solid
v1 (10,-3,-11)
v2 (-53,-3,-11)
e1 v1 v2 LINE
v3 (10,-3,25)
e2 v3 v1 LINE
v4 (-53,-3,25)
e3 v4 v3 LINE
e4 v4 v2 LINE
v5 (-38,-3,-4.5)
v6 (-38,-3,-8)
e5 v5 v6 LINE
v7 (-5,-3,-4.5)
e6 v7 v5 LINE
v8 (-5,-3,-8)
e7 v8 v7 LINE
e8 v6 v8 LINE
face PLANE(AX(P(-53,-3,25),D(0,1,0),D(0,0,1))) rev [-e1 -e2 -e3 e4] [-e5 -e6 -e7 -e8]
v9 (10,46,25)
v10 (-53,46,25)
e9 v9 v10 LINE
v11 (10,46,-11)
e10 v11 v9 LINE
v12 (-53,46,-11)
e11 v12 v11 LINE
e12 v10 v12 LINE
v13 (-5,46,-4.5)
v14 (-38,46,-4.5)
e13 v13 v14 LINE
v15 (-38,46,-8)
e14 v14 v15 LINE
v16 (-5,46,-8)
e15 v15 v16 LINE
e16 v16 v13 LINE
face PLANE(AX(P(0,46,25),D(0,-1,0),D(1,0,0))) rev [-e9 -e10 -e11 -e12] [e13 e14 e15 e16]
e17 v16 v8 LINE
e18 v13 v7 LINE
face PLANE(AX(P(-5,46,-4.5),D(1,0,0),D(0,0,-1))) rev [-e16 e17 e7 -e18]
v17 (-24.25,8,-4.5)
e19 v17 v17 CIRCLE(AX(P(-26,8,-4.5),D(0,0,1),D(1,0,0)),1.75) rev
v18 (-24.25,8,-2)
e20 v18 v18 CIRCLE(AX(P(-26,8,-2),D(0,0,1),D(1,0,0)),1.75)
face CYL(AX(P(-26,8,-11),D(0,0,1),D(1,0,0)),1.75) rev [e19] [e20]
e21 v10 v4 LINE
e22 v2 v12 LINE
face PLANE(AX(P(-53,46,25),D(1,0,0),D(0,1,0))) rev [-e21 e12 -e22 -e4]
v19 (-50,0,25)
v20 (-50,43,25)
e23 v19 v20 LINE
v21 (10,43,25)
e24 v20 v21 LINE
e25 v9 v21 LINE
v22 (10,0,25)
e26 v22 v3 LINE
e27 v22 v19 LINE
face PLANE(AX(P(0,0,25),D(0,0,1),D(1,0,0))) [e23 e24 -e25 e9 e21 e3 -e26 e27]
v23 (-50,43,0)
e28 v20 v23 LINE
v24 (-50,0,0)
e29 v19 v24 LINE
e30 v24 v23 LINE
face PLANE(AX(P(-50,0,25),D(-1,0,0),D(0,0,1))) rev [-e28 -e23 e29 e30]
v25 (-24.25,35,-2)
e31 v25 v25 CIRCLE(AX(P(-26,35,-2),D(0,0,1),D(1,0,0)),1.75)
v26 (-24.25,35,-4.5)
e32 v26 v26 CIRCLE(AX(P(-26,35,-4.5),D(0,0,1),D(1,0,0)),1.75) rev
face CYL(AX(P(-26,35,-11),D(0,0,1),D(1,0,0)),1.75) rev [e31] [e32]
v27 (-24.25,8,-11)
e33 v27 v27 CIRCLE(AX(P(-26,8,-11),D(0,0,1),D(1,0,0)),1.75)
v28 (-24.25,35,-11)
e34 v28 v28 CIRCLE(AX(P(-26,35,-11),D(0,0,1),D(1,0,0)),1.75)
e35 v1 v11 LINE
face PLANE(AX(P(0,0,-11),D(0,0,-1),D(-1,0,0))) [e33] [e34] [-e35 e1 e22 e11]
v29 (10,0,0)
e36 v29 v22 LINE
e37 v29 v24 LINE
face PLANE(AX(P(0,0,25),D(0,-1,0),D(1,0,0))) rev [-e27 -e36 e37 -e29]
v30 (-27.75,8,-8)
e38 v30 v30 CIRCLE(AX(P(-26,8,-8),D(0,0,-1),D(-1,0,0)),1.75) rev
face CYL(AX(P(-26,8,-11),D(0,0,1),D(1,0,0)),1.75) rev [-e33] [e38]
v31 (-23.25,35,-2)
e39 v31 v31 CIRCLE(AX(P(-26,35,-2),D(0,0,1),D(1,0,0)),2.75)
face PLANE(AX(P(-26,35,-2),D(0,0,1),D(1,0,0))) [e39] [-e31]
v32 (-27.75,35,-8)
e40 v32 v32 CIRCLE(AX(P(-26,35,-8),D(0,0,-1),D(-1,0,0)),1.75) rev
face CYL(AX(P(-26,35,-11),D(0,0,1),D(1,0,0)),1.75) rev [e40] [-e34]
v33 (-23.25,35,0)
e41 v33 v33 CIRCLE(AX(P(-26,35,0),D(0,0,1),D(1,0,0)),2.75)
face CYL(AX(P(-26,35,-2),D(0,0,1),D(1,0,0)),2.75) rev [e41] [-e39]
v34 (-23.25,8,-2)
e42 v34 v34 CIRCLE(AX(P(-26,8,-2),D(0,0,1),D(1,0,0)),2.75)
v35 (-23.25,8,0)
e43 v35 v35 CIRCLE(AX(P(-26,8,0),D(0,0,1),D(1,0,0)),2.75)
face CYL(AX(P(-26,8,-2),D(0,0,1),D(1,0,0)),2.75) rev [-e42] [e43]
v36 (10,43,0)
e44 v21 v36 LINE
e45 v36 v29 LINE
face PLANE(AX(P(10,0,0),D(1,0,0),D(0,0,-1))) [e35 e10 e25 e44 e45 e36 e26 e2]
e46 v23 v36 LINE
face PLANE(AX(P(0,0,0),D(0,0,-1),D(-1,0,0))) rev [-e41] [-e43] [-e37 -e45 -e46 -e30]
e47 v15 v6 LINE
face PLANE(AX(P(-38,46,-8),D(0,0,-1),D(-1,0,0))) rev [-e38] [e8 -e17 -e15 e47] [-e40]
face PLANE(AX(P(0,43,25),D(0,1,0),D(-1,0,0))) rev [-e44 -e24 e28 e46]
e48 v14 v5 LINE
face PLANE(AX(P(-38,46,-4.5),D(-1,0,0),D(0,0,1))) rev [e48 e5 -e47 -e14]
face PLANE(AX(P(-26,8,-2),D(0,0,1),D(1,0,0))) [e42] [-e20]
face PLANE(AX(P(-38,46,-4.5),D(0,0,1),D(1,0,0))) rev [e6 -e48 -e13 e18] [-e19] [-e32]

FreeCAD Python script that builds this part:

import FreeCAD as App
import Part
import Sketcher
Q = App.Units.Quantity

doc = App.newDocument("Part")
params = doc.addObject("Spreadsheet::Sheet", "Params")
for row, (alias, value) in enumerate([
    ("sketch1_width", "53 mm"),
    ("sketch1_width2", "50 mm"),
    ("sketch1_height", "3 mm"),
    ("sketch1_height2", "49 mm"),
    ("pad1_length", "25 mm"),
    ("sketch2_width", "53 mm"),
    ("sketch2_height", "49 mm"),
    ("pad2_length", "11 mm"),
    ("sketch3_diameter", "5.5 mm"),
    ("pocket1_length", "2 mm"),
    ("sketch4_diameter", "3.5 mm"),
    ("sketch5_width", "33 mm"),
    ("sketch5_height", "3.5 mm"),
    ("sketch6_width", "43 mm"),
    ("sketch6_width2", "3 mm"),
    ("sketch6_height", "25 mm"),
    ("sketch6_height2", "36 mm"),
    ("pad3_length", "10 mm"),
], start=1):
    params.set(f"A{row}", alias)
    params.set(f"B{row}", "=" + value)
    params.setAlias(f"B{row}", alias)

body = doc.addObject("PartDesign::Body", "Body")

# Sketch on XY plane
sketch1 = body.newObject("Sketcher::SketchObject", "Sketch")
sketch1.AttachmentSupport = (doc.getObject("XY_Plane"), [""])
sketch1.MapMode = "FlatFace"
sketch1.addGeometry(Part.LineSegment(App.Vector(0, 43, 0), App.Vector(0, 46, 0)), False)
sketch1.addGeometry(Part.LineSegment(App.Vector(0, 46, 0), App.Vector(-53, 46, 0)), False)
sketch1.addGeometry(Part.LineSegment(App.Vector(-53, 46, 0), App.Vector(-53, -3, 0)), False)
sketch1.addGeometry(Part.LineSegment(App.Vector(-53, -3, 0), App.Vector(0, -3, 0)), False)
sketch1.addGeometry(Part.LineSegment(App.Vector(0, -3, 0), App.Vector(0, 0, 0)), False)
sketch1.addGeometry(Part.LineSegment(App.Vector(0, 0, 0), App.Vector(-50, 0, 0)), False)
sketch1.addGeometry(Part.LineSegment(App.Vector(-50, 0, 0), App.Vector(-50, 43, 0)), False)
sketch1.addGeometry(Part.LineSegment(App.Vector(-50, 43, 0), App.Vector(0, 43, 0)), False)
sketch1.addConstraint(Sketcher.Constraint("Coincident", 0, 2, 1, 1))
sketch1.addConstraint(Sketcher.Constraint("Coincident", 1, 2, 2, 1))
sketch1.addConstraint(Sketcher.Constraint("Coincident", 2, 2, 3, 1))
sketch1.addConstraint(Sketcher.Constraint("Coincident", 3, 2, 4, 1))
sketch1.addConstraint(Sketcher.Constraint("Coincident", 4, 2, 5, 1))
sketch1.addConstraint(Sketcher.Constraint("Coincident", 5, 2, 6, 1))
sketch1.addConstraint(Sketcher.Constraint("Coincident", 6, 2, 7, 1))
sketch1.addConstraint(Sketcher.Constraint("Coincident", 7, 2, 0, 1))
sketch1.addConstraint(Sketcher.Constraint("Vertical", 0))
sketch1.addConstraint(Sketcher.Constraint("Horizontal", 1))
sketch1.addConstraint(Sketcher.Constraint("Vertical", 2))
sketch1.addConstraint(Sketcher.Constraint("Horizontal", 3))
sketch1.addConstraint(Sketcher.Constraint("Vertical", 4))
sketch1.addConstraint(Sketcher.Constraint("Horizontal", 5))
sketch1.addConstraint(Sketcher.Constraint("Vertical", 6))
sketch1.addConstraint(Sketcher.Constraint("Horizontal", 7))
sketch1.addConstraint(Sketcher.Constraint("Coincident", 4, 2, -1, 1))
sketch1.addConstraint(Sketcher.Constraint("PointOnObject", 0, 2, -2))
sketch1.addConstraint(Sketcher.Constraint("Equal", 0, 4))
sketch1.addConstraint(Sketcher.Constraint("DistanceX", 1, 2, 1, 1, Q("53 mm")))
sketch1.addConstraint(Sketcher.Constraint("DistanceX", 5, 2, 5, 1, Q("50 mm")))
sketch1.addConstraint(Sketcher.Constraint("DistanceY", 0, 1, 0, 2, Q("3 mm")))
sketch1.addConstraint(Sketcher.Constraint("DistanceY", 2, 2, 2, 1, Q("49 mm")))
sketch1.setExpression("Constraints[19]", "Params.sketch1_width")
sketch1.setExpression("Constraints[20]", "Params.sketch1_width2")
sketch1.setExpression("Constraints[21]", "Params.sketch1_height")
sketch1.setExpression("Constraints[22]", "Params.sketch1_height2")
pad1 = body.newObject("PartDesign::Pad", "Pad")
pad1.Profile = sketch1
pad1.setExpression("Length", "Params.pad1_length")

# Sketch on XY plane
sketch2 = body.newObject("Sketcher::SketchObject", "Sketch001")
sketch2.AttachmentSupport = (doc.getObject("XY_Plane"), [""])
sketch2.MapMode = "FlatFace"
sketch2.addGeometry(Part.LineSegment(App.Vector(0, 46, 0), App.Vector(0, -3, 0)), False)
sketch2.addGeometry(Part.LineSegment(App.Vector(0, -3, 0), App.Vector(-53, -3, 0)), False)
sketch2.addGeometry(Part.LineSegment(App.Vector(-53, -3, 0), App.Vector(-53, 46, 0)), False)
sketch2.addGeometry(Part.LineSegment(App.Vector(-53, 46, 0), App.Vector(0, 46, 0)), False)
sketch2.addConstraint(Sketcher.Constraint("Coincident", 0, 2, 1, 1))
sketch2.addConstraint(Sketcher.Constraint("Coincident", 1, 2, 2, 1))
sketch2.addConstraint(Sketcher.Constraint("Coincident", 2, 2, 3, 1))
sketch2.addConstraint(Sketcher.Constraint("Coincident", 3, 2, 0, 1))
sketch2.addConstraint(Sketcher.Constraint("Vertical", 0))
sketch2.addConstraint(Sketcher.Constraint("Horizontal", 1))
sketch2.addConstraint(Sketcher.Constraint("Vertical", 2))
sketch2.addConstraint(Sketcher.Constraint("Horizontal", 3))
sketch2.addConstraint(Sketcher.Constraint("PointOnObject", 0, 2, -2))
sketch2.addConstraint(Sketcher.Constraint("DistanceX", 1, 2, 1, 1, Q("53 mm")))
sketch2.addConstraint(Sketcher.Constraint("DistanceY", 0, 2, 0, 1, Q("49 mm")))
sketch2.addConstraint(Sketcher.Constraint("DistanceY", 0, 2, -1, 1, Q("3 mm")))
sketch2.setExpression("Constraints[9]", "Params.sketch2_width")
sketch2.setExpression("Constraints[10]", "Params.sketch2_height")
pad2 = body.newObject("PartDesign::Pad", "Pad001")
pad2.Profile = sketch2
pad2.setExpression("Length", "Params.pad2_length")
pad2.Reversed = True

# Sketch on XY plane
sketch3 = body.newObject("Sketcher::SketchObject", "Sketch002")
sketch3.AttachmentSupport = (doc.getObject("XY_Plane"), [""])
sketch3.MapMode = "FlatFace"
sketch3.addGeometry(Part.Circle(App.Vector(-26, 35, 0), App.Vector(0, 0, 1), 2.8), False)
sketch3.addGeometry(Part.Circle(App.Vector(-26, 8, 0), App.Vector(0, 0, 1), 2.8), False)
sketch3.addConstraint(Sketcher.Constraint("Equal", 0, 1))
sketch3.addConstraint(Sketcher.Constraint("Vertical", 0, 3, 1, 3))
sketch3.addConstraint(Sketcher.Constraint("Diameter", 0, Q("5.5 mm")))
sketch3.addConstraint(Sketcher.Constraint("DistanceX", 0, 3, -1, 1, Q("26 mm")))
sketch3.addConstraint(Sketcher.Constraint("DistanceY", -1, 1, 0, 3, Q("35 mm")))
sketch3.addConstraint(Sketcher.Constraint("DistanceY", -1, 1, 1, 3, Q("8 mm")))
sketch3.setExpression("Constraints[2]", "Params.sketch3_diameter")
pocket1 = body.newObject("PartDesign::Pocket", "Pocket")
pocket1.Profile = sketch3
pocket1.setExpression("Length", "Params.pocket1_length")

# Sketch on XY plane
sketch4 = body.newObject("Sketcher::SketchObject", "Sketch003")
sketch4.AttachmentSupport = (doc.getObject("XY_Plane"), [""])
sketch4.MapMode = "FlatFace"
sketch4.AttachmentOffset = App.Placement(App.Vector(0, 0, -2), App.Rotation())
sketch4.addGeometry(Part.Circle(App.Vector(-26, 8, 0), App.Vector(0, 0, 1), 1.8), False)
sketch4.addGeometry(Part.Circle(App.Vector(-26, 35, 0), App.Vector(0, 0, 1), 1.8), False)
sketch4.addConstraint(Sketcher.Constraint("Equal", 0, 1))
sketch4.addConstraint(Sketcher.Constraint("Vertical", 0, 3, 1, 3))
sketch4.addConstraint(Sketcher.Constraint("Diameter", 0, Q("3.5 mm")))
sketch4.addConstraint(Sketcher.Constraint("DistanceX", 0, 3, -1, 1, Q("26 mm")))
sketch4.addConstraint(Sketcher.Constraint("DistanceY", -1, 1, 0, 3, Q("8 mm")))
sketch4.addConstraint(Sketcher.Constraint("DistanceY", -1, 1, 1, 3, Q("35 mm")))
sketch4.setExpression("Constraints[2]", "Params.sketch4_diameter")
pocket2 = body.newObject("PartDesign::Pocket", "Pocket001")
pocket2.Profile = sketch4
pocket2.Type = "ThroughAll"

# Sketch on XZ plane
sketch5 = body.newObject("Sketcher::SketchObject", "Sketch004")
sketch5.AttachmentSupport = (doc.getObject("XZ_Plane"), [""])
sketch5.MapMode = "FlatFace"
sketch5.AttachmentOffset = App.Placement(App.Vector(0, 0, 3), App.Rotation())
sketch5.addGeometry(Part.LineSegment(App.Vector(-38, -4.5, 0), App.Vector(-38, -8, 0)), False)
sketch5.addGeometry(Part.LineSegment(App.Vector(-38, -8, 0), App.Vector(-5, -8, 0)), False)
sketch5.addGeometry(Part.LineSegment(App.Vector(-5, -8, 0), App.Vector(-5, -4.5, 0)), False)
sketch5.addGeometry(Part.LineSegment(App.Vector(-5, -4.5, 0), App.Vector(-38, -4.5, 0)), False)
sketch5.addConstraint(Sketcher.Constraint("Coincident", 0, 2, 1, 1))
sketch5.addConstraint(Sketcher.Constraint("Coincident", 1, 2, 2, 1))
sketch5.addConstraint(Sketcher.Constraint("Coincident", 2, 2, 3, 1))
sketch5.addConstraint(Sketcher.Constraint("Coincident", 3, 2, 0, 1))
sketch5.addConstraint(Sketcher.Constraint("Vertical", 0))
sketch5.addConstraint(Sketcher.Constraint("Horizontal", 1))
sketch5.addConstraint(Sketcher.Constraint("Vertical", 2))
sketch5.addConstraint(Sketcher.Constraint("Horizontal", 3))
sketch5.addConstraint(Sketcher.Constraint("DistanceX", 1, 1, 1, 2, Q("33 mm")))
sketch5.addConstraint(Sketcher.Constraint("DistanceY", 0, 2, 0, 1, Q("3.5 mm")))
sketch5.addConstraint(Sketcher.Constraint("DistanceX", 0, 2, -1, 1, Q("38 mm")))
sketch5.addConstraint(Sketcher.Constraint("DistanceY", 0, 2, -1, 1, Q("8 mm")))
sketch5.setExpression("Constraints[8]", "Params.sketch5_width")
sketch5.setExpression("Constraints[9]", "Params.sketch5_height")
pocket3 = body.newObject("PartDesign::Pocket", "Pocket002")
pocket3.Profile = sketch5
pocket3.Type = "ThroughAll"

# Sketch on YZ plane
sketch6 = body.newObject("Sketcher::SketchObject", "Sketch005")
sketch6.AttachmentSupport = (doc.getObject("YZ_Plane"), [""])
sketch6.MapMode = "FlatFace"
sketch6.addGeometry(Part.LineSegment(App.Vector(43, 25, 0), App.Vector(43, 0, 0)), False)
sketch6.addGeometry(Part.LineSegment(App.Vector(43, 0, 0), App.Vector(0, 0, 0)), False)
sketch6.addGeometry(Part.LineSegment(App.Vector(0, 0, 0), App.Vector(0, 25, 0)), False)
sketch6.addGeometry(Part.LineSegment(App.Vector(0, 25, 0), App.Vector(-3, 25, 0)), False)
sketch6.addGeometry(Part.LineSegment(App.Vector(-3, 25, 0), App.Vector(-3, -11, 0)), False)
sketch6.addGeometry(Part.LineSegment(App.Vector(-3, -11, 0), App.Vector(46, -11, 0)), False)
sketch6.addGeometry(Part.LineSegment(App.Vector(46, -11, 0), App.Vector(46, 25, 0)), False)
sketch6.addGeometry(Part.LineSegment(App.Vector(46, 25, 0), App.Vector(43, 25, 0)), False)
sketch6.addConstraint(Sketcher.Constraint("Coincident", 0, 2, 1, 1))
sketch6.addConstraint(Sketcher.Constraint("Coincident", 1, 2, 2, 1))
sketch6.addConstraint(Sketcher.Constraint("Coincident", 2, 2, 3, 1))
sketch6.addConstraint(Sketcher.Constraint("Coincident", 3, 2, 4, 1))
sketch6.addConstraint(Sketcher.Constraint("Coincident", 4, 2, 5, 1))
sketch6.addConstraint(Sketcher.Constraint("Coincident", 5, 2, 6, 1))
sketch6.addConstraint(Sketcher.Constraint("Coincident", 6, 2, 7, 1))
sketch6.addConstraint(Sketcher.Constraint("Coincident", 7, 2, 0, 1))
sketch6.addConstraint(Sketcher.Constraint("Vertical", 0))
sketch6.addConstraint(Sketcher.Constraint("Horizontal", 1))
sketch6.addConstraint(Sketcher.Constraint("Vertical", 2))
sketch6.addConstraint(Sketcher.Constraint("Horizontal", 3))
sketch6.addConstraint(Sketcher.Constraint("Vertical", 4))
sketch6.addConstraint(Sketcher.Constraint("Horizontal", 5))
sketch6.addConstraint(Sketcher.Constraint("Vertical", 6))
sketch6.addConstraint(Sketcher.Constraint("Horizontal", 7))
sketch6.addConstraint(Sketcher.Constraint("Coincident", 1, 2, -1, 1))
sketch6.addConstraint(Sketcher.Constraint("Horizontal", 3, 2, 6, 2))
sketch6.addConstraint(Sketcher.Constraint("Equal", 3, 7))
sketch6.addConstraint(Sketcher.Constraint("DistanceX", 1, 2, 1, 1, Q("43 mm")))
sketch6.addConstraint(Sketcher.Constraint("DistanceX", 3, 2, 3, 1, Q("3 mm")))
sketch6.addConstraint(Sketcher.Constraint("DistanceY", 0, 2, 0, 1, Q("25 mm")))
sketch6.addConstraint(Sketcher.Constraint("DistanceY", 4, 2, 4, 1, Q("36 mm")))
sketch6.setExpression("Constraints[19]", "Params.sketch6_width")
sketch6.setExpression("Constraints[20]", "Params.sketch6_width2")
sketch6.setExpression("Constraints[21]", "Params.sketch6_height")
sketch6.setExpression("Constraints[22]", "Params.sketch6_height2")
pad3 = body.newObject("PartDesign::Pad", "Pad002")
pad3.Profile = sketch6
pad3.setExpression("Length", "Params.pad3_length")

doc.recompute()
